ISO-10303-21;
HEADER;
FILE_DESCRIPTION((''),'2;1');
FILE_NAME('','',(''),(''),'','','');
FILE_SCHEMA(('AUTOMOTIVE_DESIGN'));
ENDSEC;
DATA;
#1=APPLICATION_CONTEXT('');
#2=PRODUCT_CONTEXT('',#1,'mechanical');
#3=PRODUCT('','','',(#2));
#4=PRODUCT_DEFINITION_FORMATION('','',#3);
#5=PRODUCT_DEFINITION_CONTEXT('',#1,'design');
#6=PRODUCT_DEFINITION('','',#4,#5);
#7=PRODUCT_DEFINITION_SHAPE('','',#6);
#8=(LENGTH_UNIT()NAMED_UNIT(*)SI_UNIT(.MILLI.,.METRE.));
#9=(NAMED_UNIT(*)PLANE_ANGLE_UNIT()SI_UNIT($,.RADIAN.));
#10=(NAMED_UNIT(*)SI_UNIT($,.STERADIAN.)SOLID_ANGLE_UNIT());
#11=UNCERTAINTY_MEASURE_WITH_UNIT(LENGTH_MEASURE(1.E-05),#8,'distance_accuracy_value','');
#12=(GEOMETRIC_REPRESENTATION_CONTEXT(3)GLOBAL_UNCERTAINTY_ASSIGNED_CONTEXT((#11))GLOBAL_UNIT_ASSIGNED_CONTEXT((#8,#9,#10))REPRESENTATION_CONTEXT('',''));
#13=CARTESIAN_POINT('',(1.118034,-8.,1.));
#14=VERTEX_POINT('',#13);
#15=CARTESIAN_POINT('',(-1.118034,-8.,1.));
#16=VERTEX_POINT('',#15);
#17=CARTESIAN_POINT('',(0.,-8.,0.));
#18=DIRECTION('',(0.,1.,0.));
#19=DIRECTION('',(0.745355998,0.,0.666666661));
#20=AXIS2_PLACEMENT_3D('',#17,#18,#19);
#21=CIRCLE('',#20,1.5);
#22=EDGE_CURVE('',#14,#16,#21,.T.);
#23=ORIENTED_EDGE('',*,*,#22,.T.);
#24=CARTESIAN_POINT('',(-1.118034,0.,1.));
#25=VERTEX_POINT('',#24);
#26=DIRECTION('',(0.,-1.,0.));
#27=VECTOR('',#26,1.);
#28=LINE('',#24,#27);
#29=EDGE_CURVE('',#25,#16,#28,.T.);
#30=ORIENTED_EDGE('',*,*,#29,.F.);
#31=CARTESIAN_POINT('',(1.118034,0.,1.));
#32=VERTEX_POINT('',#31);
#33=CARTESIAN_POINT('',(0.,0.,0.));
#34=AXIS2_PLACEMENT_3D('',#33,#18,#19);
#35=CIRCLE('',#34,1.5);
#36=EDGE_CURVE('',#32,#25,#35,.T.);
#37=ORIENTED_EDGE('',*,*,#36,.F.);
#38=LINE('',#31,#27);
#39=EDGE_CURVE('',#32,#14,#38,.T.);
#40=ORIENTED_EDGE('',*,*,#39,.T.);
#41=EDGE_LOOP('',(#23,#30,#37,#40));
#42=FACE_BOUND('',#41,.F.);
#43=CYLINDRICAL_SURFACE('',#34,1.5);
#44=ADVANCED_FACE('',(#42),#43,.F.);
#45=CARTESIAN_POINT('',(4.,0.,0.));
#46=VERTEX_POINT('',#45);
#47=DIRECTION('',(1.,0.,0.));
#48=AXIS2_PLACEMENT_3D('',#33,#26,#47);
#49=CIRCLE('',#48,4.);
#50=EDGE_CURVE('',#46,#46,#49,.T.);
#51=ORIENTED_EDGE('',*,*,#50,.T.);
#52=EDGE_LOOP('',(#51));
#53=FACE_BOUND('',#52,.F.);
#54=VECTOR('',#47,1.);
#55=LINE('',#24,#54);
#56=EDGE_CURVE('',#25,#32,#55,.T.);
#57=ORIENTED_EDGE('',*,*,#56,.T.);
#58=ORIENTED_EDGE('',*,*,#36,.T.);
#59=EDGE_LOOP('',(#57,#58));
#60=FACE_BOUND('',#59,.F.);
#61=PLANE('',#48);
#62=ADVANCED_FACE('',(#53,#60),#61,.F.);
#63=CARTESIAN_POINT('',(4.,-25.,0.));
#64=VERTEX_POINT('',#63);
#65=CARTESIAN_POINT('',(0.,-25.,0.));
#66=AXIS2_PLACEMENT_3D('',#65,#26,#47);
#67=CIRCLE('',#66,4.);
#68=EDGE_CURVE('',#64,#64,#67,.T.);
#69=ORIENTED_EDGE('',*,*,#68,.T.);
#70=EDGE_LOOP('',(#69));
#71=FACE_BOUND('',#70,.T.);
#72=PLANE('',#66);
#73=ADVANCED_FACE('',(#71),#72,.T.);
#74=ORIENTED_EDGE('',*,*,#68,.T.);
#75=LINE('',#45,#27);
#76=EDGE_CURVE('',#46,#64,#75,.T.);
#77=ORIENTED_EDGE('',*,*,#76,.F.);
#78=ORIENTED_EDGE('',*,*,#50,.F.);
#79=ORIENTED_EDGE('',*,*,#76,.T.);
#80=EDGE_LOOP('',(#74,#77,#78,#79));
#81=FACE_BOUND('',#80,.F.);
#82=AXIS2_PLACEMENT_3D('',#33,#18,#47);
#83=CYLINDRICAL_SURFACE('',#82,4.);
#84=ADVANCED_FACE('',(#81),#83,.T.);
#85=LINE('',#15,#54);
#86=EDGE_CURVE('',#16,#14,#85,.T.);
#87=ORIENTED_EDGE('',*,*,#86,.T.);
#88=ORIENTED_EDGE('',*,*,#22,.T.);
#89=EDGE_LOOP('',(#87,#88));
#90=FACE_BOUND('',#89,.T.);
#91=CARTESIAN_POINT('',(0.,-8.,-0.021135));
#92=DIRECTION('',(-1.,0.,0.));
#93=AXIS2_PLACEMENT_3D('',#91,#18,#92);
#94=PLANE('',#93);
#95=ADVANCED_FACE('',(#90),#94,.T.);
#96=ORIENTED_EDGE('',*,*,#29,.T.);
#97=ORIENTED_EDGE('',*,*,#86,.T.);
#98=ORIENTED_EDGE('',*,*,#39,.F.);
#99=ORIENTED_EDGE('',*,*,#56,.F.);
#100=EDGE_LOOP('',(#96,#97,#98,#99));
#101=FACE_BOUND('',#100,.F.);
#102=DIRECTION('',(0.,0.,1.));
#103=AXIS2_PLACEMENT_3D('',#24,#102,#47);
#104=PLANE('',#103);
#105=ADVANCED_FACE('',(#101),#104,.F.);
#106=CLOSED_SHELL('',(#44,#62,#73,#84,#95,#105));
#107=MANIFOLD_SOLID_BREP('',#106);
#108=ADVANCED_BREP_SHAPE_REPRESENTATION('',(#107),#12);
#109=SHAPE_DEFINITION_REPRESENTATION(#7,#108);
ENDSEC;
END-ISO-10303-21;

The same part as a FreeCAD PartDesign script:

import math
import FreeCAD as App
import Part
import Sketcher

V = App.Vector
Q = App.Units.Quantity

doc = App.newDocument("Part")
body = doc.addObject("PartDesign::Body", "Body")

# Sketch on XZ plane
sketch1 = doc.addObject("Sketcher::SketchObject", "Sketch")
body.addObject(sketch1)
sketch1.AttachmentSupport = (doc.XZ_Plane, [""])
sketch1.MapMode = "FlatFace"
sketch1.addGeometry(Part.Circle(V(0, 0, 0), V(0, 0, 1), 4), False)
sketch1.addConstraint([
    Sketcher.Constraint("Coincident", 0, 3, -1, 1),
    Sketcher.Constraint("Diameter", 0, Q("8 mm")),
])
pad1 = doc.addObject("PartDesign::Pad", "Pad")
body.addObject(pad1)
pad1.Profile = sketch1
pad1.Length = 25

# Sketch on XZ plane
sketch2 = doc.addObject("Sketcher::SketchObject", "Sketch001")
body.addObject(sketch2)
sketch2.AttachmentSupport = (doc.XZ_Plane, [""])
sketch2.MapMode = "FlatFace"
sketch2.addGeometry([
    Part.LineSegment(V(-1.118034, 1, 0), V(1.118034, 1, 0)),
    Part.ArcOfCircle(Part.Circle(V(0, 0, 0), V(0, 0, 1), 1.5), math.radians(138.189686), math.radians(401.810314)),
], False)
sketch2.addConstraint([
    Sketcher.Constraint("Coincident", 0, 1, 1, 1),
    Sketcher.Constraint("Coincident", 1, 2, 0, 2),
    Sketcher.Constraint("Horizontal", 0),
    Sketcher.Constraint("Coincident", 1, 3, -1, 1),
    Sketcher.Constraint("Radius", 1, Q("1.5 mm")),
    Sketcher.Constraint("DistanceY", -1, 1, 0, 1, Q("1 mm")),
])
pocket1 = doc.addObject("PartDesign::Pocket", "Pocket")
body.addObject(pocket1)
pocket1.Profile = sketch2
pocket1.Length = 8
pocket1.Reversed = True

doc.recompute()
